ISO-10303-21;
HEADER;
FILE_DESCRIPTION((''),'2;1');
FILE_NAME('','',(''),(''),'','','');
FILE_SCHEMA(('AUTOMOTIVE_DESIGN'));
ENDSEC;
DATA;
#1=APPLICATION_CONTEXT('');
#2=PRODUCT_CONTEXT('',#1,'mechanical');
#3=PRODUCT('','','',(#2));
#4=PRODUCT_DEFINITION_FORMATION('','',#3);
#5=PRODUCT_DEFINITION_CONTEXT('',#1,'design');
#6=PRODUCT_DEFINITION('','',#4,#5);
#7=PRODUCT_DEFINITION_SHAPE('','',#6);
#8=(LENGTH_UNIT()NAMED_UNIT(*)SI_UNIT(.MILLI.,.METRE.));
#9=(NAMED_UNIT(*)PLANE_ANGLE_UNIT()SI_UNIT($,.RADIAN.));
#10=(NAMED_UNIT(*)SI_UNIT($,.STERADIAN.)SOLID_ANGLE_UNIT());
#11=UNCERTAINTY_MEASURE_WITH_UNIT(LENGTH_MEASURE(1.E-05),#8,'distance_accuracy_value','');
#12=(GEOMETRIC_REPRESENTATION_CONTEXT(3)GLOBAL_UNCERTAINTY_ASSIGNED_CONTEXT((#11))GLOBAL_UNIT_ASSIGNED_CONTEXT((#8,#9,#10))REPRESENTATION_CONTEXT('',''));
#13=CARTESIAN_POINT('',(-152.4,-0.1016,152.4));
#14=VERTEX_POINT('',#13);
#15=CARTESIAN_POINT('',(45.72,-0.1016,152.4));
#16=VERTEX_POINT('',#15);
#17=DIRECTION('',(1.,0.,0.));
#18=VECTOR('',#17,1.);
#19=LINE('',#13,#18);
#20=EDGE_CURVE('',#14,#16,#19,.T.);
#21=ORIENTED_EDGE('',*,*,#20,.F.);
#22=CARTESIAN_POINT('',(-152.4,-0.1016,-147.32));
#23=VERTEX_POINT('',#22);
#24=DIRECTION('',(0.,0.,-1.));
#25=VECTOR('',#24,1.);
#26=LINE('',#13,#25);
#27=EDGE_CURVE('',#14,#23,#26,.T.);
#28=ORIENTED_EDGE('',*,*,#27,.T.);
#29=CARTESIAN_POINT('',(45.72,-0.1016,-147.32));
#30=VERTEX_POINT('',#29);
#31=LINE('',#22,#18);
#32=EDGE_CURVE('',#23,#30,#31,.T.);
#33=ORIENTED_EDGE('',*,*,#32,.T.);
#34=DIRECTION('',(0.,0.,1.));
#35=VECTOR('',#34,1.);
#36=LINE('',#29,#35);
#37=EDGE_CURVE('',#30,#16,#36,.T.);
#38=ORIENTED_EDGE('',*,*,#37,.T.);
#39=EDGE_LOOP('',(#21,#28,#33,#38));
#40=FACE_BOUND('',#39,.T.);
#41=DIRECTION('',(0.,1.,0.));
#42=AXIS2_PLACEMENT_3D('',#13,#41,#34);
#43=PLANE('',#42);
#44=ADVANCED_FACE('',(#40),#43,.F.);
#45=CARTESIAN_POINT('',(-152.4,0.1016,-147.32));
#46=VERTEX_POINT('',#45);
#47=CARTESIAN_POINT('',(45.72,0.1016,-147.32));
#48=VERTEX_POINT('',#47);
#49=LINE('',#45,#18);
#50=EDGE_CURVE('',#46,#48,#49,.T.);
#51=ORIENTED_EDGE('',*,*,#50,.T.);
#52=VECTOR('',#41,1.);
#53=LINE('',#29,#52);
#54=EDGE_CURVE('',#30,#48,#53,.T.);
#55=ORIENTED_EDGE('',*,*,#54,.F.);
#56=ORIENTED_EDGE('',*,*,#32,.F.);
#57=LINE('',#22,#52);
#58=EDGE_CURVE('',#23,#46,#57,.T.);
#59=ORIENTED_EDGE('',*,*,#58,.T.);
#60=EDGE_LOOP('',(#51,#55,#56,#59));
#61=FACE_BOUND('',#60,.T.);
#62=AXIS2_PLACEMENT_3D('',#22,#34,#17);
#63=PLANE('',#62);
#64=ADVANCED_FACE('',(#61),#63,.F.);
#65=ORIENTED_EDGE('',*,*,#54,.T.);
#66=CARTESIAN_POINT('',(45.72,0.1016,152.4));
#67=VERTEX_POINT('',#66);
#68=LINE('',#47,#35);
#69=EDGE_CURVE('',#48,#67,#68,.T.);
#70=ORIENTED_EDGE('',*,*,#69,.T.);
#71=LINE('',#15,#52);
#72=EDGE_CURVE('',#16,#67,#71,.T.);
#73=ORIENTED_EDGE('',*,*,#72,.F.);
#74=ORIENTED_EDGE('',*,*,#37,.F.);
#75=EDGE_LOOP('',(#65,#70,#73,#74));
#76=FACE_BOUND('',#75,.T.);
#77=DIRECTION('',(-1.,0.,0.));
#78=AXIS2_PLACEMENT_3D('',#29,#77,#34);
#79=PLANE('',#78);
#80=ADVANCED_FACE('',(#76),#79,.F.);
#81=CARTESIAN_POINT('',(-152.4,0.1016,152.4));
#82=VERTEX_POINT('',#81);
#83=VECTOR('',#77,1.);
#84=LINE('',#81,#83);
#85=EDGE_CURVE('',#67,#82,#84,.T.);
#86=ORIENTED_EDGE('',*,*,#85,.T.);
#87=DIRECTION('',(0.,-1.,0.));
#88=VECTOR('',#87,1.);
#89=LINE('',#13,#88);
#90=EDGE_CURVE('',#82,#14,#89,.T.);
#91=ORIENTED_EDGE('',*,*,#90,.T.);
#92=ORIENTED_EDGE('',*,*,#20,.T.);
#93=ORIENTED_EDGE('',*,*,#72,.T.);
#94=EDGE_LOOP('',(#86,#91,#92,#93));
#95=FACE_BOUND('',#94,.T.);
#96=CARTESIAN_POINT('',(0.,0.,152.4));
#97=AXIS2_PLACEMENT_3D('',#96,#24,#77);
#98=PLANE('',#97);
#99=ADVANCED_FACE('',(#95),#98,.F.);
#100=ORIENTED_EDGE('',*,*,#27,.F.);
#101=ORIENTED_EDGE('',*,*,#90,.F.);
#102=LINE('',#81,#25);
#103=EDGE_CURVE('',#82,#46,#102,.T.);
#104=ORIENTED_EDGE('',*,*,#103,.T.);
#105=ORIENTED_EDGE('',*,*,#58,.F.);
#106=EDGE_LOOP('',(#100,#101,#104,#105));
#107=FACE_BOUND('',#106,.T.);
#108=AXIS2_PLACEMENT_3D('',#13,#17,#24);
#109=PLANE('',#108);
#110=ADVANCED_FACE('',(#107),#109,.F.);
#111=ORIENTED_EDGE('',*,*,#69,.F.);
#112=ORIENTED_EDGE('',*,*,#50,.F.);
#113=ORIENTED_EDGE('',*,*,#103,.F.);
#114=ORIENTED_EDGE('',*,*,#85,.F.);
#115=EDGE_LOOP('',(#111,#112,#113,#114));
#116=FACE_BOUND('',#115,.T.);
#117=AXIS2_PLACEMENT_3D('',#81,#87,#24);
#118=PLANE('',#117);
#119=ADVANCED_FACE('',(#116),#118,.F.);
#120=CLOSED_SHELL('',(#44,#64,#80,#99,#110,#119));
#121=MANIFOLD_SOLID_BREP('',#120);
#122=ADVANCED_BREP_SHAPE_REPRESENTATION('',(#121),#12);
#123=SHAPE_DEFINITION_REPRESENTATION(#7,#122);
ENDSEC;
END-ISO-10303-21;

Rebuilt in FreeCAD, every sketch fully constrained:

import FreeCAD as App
import Part
import Sketcher

V = App.Vector
Q = App.Units.Quantity


def add_polygon(sketch, points):
    """Adds a closed chain of lines whose ends are joined by coincident constraints."""
    first, n = sketch.GeometryCount, len(points)
    for a, b in zip(points, points[1:] + points[:1]):
        sketch.addGeometry(Part.LineSegment(App.Vector(*a, 0), App.Vector(*b, 0)), False)
    for i in range(n):
        sketch.addConstraint(Sketcher.Constraint("Coincident", first + i, 2, first + (i + 1) % n, 1))

doc = App.newDocument("Part")
body = doc.addObject("PartDesign::Body", "Body")

# Sketch on XY plane
sketch1 = doc.addObject("Sketcher::SketchObject", "Sketch")
body.addObject(sketch1)
sketch1.AttachmentSupport = (doc.XY_Plane, [""])
sketch1.MapMode = "FlatFace"
add_polygon(sketch1, [(-152.4, 0.1016), (-152.4, -0.1016), (152.4, -0.1016), (152.4, 0.1016)])  # lines 0-3
sketch1.addConstraint([
    Sketcher.Constraint("Vertical", 0),
    Sketcher.Constraint("Horizontal", 1),
    Sketcher.Constraint("Vertical", 2),
    Sketcher.Constraint("Horizontal", 3),
    Sketcher.Constraint("Symmetric", 0, 2, 2, 2, -1, 1),
    Sketcher.Constraint("DistanceX", 1, 1, 1, 2, Q("12 in")),
    Sketcher.Constraint("DistanceY", 0, 2, 0, 1, Q("0.008 in")),
])
pad1 = doc.addObject("PartDesign::Pad", "Pad")
body.addObject(pad1)
pad1.Profile = sketch1
pad1.Length = Q("12 in")
pad1.Midplane = True

# Sketch on XZ plane
sketch2 = doc.addObject("Sketcher::SketchObject", "Sketch001")
body.addObject(sketch2)
sketch2.AttachmentSupport = (doc.XZ_Plane, [""])
sketch2.MapMode = "FlatFace"
add_polygon(sketch2, [(-152.4, -152.4), (-152.4, -147.32), (45.72, -147.32), (45.72, 152.4), (152.4, 152.4), (152.4, -152.4)])  # lines 0-5
sketch2.addConstraint([
    Sketcher.Constraint("Vertical", 0),
    Sketcher.Constraint("Horizontal", 1),
    Sketcher.Constraint("Vertical", 2),
    Sketcher.Constraint("Horizontal", 3),
    Sketcher.Constraint("Vertical", 4),
    Sketcher.Constraint("Horizontal", 5),
    Sketcher.Constraint("Symmetric", 3, 2, 5, 2, -1, 1),
    Sketcher.Constraint("Equal", 5, 4),
    Sketcher.Constraint("DistanceX", 5, 2, 5, 1, Q("12 in")),
    Sketcher.Constraint("DistanceX", 1, 1, 1, 2, Q("7.8 in")),
    Sketcher.Constraint("DistanceY", 0, 1, 0, 2, Q("0.2 in")),
])
pocket1 = doc.addObject("PartDesign::Pocket", "Pocket")
body.addObject(pocket1)
pocket1.Profile = sketch2
pocket1.Type = "ThroughAll"
pocket1.Midplane = True

doc.recompute()
